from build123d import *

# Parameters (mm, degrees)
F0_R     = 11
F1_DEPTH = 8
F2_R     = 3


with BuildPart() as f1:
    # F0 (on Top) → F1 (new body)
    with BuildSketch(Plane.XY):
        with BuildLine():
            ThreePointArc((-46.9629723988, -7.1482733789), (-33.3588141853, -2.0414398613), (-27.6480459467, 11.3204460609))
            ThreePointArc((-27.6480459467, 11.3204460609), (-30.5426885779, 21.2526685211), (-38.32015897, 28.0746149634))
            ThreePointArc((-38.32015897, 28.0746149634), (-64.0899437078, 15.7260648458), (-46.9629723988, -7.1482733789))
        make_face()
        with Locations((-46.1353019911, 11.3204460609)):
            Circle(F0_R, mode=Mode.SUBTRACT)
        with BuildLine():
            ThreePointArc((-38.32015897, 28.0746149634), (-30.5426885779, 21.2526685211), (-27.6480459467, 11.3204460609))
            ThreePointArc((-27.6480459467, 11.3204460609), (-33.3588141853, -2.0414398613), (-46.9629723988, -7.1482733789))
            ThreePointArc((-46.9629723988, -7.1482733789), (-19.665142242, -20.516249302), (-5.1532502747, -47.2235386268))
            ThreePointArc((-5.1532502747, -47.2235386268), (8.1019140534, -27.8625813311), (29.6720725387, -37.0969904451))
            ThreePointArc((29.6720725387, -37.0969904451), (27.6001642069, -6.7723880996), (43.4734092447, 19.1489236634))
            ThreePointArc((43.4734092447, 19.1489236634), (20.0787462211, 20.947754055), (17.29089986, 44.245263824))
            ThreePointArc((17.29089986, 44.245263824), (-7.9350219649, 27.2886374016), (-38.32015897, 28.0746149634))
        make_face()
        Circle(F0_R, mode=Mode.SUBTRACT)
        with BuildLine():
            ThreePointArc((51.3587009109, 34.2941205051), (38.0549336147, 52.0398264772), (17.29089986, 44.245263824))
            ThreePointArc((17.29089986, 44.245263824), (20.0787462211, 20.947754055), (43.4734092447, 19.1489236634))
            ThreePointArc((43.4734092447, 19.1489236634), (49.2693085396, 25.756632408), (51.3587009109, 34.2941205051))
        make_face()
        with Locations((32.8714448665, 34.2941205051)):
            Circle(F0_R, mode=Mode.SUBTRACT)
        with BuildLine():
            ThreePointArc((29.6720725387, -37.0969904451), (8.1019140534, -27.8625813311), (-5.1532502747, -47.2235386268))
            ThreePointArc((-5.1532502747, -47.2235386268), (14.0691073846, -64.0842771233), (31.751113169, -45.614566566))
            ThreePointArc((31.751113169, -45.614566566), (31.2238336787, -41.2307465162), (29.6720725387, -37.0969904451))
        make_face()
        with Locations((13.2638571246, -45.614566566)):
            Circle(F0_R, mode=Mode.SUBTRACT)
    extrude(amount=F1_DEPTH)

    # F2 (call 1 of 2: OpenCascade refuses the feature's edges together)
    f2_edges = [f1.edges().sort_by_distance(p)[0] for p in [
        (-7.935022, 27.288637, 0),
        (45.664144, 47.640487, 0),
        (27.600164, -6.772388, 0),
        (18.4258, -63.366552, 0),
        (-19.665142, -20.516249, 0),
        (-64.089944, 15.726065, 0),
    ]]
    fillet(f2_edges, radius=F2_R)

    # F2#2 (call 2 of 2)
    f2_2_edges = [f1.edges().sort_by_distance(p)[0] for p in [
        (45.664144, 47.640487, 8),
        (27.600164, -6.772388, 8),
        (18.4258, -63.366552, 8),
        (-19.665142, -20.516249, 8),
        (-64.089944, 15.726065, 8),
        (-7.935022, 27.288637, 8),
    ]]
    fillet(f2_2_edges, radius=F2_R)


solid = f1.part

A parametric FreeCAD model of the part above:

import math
import FreeCAD as App
import Part
import Sketcher
Q = App.Units.Quantity


def edges_at(feature, points):
    """Names of the edges that pass closest to the given points."""
    edges = feature.Shape.Edges
    near = lambda p: min(range(len(edges)), key=lambda i: edges[i].distToShape(Part.Vertex(*p))[0])
    return sorted({f"Edge{near(p) + 1}" for p in points})

doc = App.newDocument("Part")
body = doc.addObject("PartDesign::Body", "Body")

sketch1 = body.newObject("Sketcher::SketchObject", "Sketch")
sketch1.AttachmentSupport = (doc.getObject("XY_Plane"), [""])
sketch1.MapMode = "FlatFace"
sketch1.addGeometry(Part.ArcOfCircle(Part.Circle(App.Vector(-46, 11, 0), App.Vector(0, 0, 1), 18), math.radians(65), math.radians(267)), False)
sketch1.addGeometry(Part.ArcOfCircle(Part.Circle(App.Vector(-54, -57, 0), App.Vector(0, 0, 1), 50), math.radians(11), math.radians(82)), False)
sketch1.addGeometry(Part.ArcOfCircle(Part.Circle(App.Vector(13, -46, 0), App.Vector(0, 0, 1), 18), math.radians(-175), math.radians(0)), False)
sketch1.addGeometry(Part.ArcOfCircle(Part.Circle(App.Vector(13, -46, 0), App.Vector(0, 0, 1), 18), math.radians(0), math.radians(27)), False)
sketch1.addGeometry(Part.ArcOfCircle(Part.Circle(App.Vector(76, -19, 0), App.Vector(0, 0, 1), 50), math.radians(131), math.radians(202)), False)
sketch1.addGeometry(Part.ArcOfCircle(Part.Circle(App.Vector(33, 34, 0), App.Vector(0, 0, 1), 18), math.radians(-55), math.radians(0)), False)
sketch1.addGeometry(Part.ArcOfCircle(Part.Circle(App.Vector(33, 34, 0), App.Vector(0, 0, 1), 18), math.radians(0), math.radians(147)), False)
sketch1.addGeometry(Part.ArcOfCircle(Part.Circle(App.Vector(-22, 75, 0), App.Vector(0, 0, 1), 50), math.radians(-109), math.radians(-38)), False)
sketch1.addGeometry(Part.Circle(App.Vector(13, -46, 0), App.Vector(0, 0, 1), 11), False)
sketch1.addGeometry(Part.Circle(App.Vector(-46, 11, 0), App.Vector(0, 0, 1), 11), False)
sketch1.addGeometry(Part.Circle(App.Vector(0, 0, 0), App.Vector(0, 0, 1), 11), False)
sketch1.addGeometry(Part.Circle(App.Vector(33, 34, 0), App.Vector(0, 0, 1), 11), False)
sketch1.addConstraint(Sketcher.Constraint("Coincident", 0, 2, 1, 2))
sketch1.addConstraint(Sketcher.Constraint("Coincident", 1, 1, 2, 1))
sketch1.addConstraint(Sketcher.Constraint("Tangent", 2, 2, 3, 1))
sketch1.addConstraint(Sketcher.Constraint("Coincident", 3, 2, 4, 2))
sketch1.addConstraint(Sketcher.Constraint("Coincident", 4, 1, 5, 1))
sketch1.addConstraint(Sketcher.Constraint("Tangent", 5, 2, 6, 1))
sketch1.addConstraint(Sketcher.Constraint("Coincident", 6, 2, 7, 2))
sketch1.addConstraint(Sketcher.Constraint("Coincident", 7, 1, 0, 1))
sketch1.addConstraint(Sketcher.Constraint("Coincident", 10, 3, -1, 1))
sketch1.addConstraint(Sketcher.Constraint("Coincident", 8, 3, 2, 3))
sketch1.addConstraint(Sketcher.Constraint("Coincident", 9, 3, 0, 3))
sketch1.addConstraint(Sketcher.Constraint("Coincident", 11, 3, 5, 3))
sketch1.addConstraint(Sketcher.Constraint("Equal", 0, 2))
sketch1.addConstraint(Sketcher.Constraint("Equal", 2, 3))
sketch1.addConstraint(Sketcher.Constraint("Equal", 1, 4))
sketch1.addConstraint(Sketcher.Constraint("Equal", 3, 5))
sketch1.addConstraint(Sketcher.Constraint("Equal", 5, 6))
sketch1.addConstraint(Sketcher.Constraint("Equal", 4, 7))
sketch1.addConstraint(Sketcher.Constraint("Equal", 8, 9))
sketch1.addConstraint(Sketcher.Constraint("Equal", 9, 10))
sketch1.addConstraint(Sketcher.Constraint("Equal", 10, 11))
sketch1.addConstraint(Sketcher.Constraint("Horizontal", 8, 3, 2, 2))
sketch1.addConstraint(Sketcher.Constraint("Horizontal", 11, 3, 5, 2))
sketch1.addConstraint(Sketcher.Constraint("Diameter", 8, Q("22 mm")))
sketch1.addConstraint(Sketcher.Constraint("Radius", 1, Q("50 mm")))
sketch1.addConstraint(Sketcher.Constraint("Radius", 0, Q("18.487256 mm")))
sketch1.addConstraint(Sketcher.Constraint("DistanceX", 0, 3, -1, 1, Q("46.135302 mm")))
sketch1.addConstraint(Sketcher.Constraint("DistanceX", -1, 1, 5, 2, Q("51.358701 mm")))
sketch1.addConstraint(Sketcher.Constraint("DistanceX", -1, 1, 6, 2, Q("17.2909 mm")))
sketch1.addConstraint(Sketcher.Constraint("DistanceY", 1, 3, 4, 3, Q("37.924701 mm")))
sketch1.addConstraint(Sketcher.Constraint("DistanceY", 1, 3, 0, 2, Q("49.464102 mm")))
sketch1.addConstraint(Sketcher.Constraint("DistanceY", -1, 1, 5, 3, Q("34.294121 mm")))
sketch1.addConstraint(Sketcher.Constraint("DistanceY", -1, 1, 7, 3, Q("75.300049 mm")))
sketch1.addConstraint(Sketcher.Constraint("DistanceX", 1, 1, -1, 1, Q("5.15325 mm")))
sketch1.addConstraint(Sketcher.Constraint("DistanceY", 1, 1, -1, 1, Q("47.223539 mm")))
sketch1.addConstraint(Sketcher.Constraint("DistanceY", 3, 2, -1, 1, Q("37.09699 mm")))
sketch1.addConstraint(Sketcher.Constraint("DistanceX", -1, 1, 4, 1, Q("43.473409 mm")))
sketch1.addConstraint(Sketcher.Constraint("DistanceX", 7, 1, -1, 1, Q("38.320159 mm")))
pad1 = body.newObject("PartDesign::Pad", "Pad")
pad1.Profile = sketch1
pad1.Length = 8
doc.recompute()

fillet = body.newObject("PartDesign::Fillet", "Fillet")
fillet.Base = (pad1, edges_at(pad1, [
    (-7.935, 27.289, 0),
    (38.055, 52.04, 0),
    (27.6, -6.772, 0),
    (14.069, -64.084, 0),
    (-19.665, -20.516, 0),
    (-64.09, 15.726, 0),
]))
fillet.Radius = 3
doc.recompute()

fillet2 = body.newObject("PartDesign::Fillet", "Fillet001")
fillet2.Base = (fillet, edges_at(fillet, [
    (38.055, 52.04, 8),
    (27.6, -6.772, 8),
    (14.069, -64.084, 8),
    (-19.665, -20.516, 8),
    (-64.09, 15.726, 8),
    (-7.935, 27.289, 8),
]))
fillet2.Radius = 3

doc.recompute()
